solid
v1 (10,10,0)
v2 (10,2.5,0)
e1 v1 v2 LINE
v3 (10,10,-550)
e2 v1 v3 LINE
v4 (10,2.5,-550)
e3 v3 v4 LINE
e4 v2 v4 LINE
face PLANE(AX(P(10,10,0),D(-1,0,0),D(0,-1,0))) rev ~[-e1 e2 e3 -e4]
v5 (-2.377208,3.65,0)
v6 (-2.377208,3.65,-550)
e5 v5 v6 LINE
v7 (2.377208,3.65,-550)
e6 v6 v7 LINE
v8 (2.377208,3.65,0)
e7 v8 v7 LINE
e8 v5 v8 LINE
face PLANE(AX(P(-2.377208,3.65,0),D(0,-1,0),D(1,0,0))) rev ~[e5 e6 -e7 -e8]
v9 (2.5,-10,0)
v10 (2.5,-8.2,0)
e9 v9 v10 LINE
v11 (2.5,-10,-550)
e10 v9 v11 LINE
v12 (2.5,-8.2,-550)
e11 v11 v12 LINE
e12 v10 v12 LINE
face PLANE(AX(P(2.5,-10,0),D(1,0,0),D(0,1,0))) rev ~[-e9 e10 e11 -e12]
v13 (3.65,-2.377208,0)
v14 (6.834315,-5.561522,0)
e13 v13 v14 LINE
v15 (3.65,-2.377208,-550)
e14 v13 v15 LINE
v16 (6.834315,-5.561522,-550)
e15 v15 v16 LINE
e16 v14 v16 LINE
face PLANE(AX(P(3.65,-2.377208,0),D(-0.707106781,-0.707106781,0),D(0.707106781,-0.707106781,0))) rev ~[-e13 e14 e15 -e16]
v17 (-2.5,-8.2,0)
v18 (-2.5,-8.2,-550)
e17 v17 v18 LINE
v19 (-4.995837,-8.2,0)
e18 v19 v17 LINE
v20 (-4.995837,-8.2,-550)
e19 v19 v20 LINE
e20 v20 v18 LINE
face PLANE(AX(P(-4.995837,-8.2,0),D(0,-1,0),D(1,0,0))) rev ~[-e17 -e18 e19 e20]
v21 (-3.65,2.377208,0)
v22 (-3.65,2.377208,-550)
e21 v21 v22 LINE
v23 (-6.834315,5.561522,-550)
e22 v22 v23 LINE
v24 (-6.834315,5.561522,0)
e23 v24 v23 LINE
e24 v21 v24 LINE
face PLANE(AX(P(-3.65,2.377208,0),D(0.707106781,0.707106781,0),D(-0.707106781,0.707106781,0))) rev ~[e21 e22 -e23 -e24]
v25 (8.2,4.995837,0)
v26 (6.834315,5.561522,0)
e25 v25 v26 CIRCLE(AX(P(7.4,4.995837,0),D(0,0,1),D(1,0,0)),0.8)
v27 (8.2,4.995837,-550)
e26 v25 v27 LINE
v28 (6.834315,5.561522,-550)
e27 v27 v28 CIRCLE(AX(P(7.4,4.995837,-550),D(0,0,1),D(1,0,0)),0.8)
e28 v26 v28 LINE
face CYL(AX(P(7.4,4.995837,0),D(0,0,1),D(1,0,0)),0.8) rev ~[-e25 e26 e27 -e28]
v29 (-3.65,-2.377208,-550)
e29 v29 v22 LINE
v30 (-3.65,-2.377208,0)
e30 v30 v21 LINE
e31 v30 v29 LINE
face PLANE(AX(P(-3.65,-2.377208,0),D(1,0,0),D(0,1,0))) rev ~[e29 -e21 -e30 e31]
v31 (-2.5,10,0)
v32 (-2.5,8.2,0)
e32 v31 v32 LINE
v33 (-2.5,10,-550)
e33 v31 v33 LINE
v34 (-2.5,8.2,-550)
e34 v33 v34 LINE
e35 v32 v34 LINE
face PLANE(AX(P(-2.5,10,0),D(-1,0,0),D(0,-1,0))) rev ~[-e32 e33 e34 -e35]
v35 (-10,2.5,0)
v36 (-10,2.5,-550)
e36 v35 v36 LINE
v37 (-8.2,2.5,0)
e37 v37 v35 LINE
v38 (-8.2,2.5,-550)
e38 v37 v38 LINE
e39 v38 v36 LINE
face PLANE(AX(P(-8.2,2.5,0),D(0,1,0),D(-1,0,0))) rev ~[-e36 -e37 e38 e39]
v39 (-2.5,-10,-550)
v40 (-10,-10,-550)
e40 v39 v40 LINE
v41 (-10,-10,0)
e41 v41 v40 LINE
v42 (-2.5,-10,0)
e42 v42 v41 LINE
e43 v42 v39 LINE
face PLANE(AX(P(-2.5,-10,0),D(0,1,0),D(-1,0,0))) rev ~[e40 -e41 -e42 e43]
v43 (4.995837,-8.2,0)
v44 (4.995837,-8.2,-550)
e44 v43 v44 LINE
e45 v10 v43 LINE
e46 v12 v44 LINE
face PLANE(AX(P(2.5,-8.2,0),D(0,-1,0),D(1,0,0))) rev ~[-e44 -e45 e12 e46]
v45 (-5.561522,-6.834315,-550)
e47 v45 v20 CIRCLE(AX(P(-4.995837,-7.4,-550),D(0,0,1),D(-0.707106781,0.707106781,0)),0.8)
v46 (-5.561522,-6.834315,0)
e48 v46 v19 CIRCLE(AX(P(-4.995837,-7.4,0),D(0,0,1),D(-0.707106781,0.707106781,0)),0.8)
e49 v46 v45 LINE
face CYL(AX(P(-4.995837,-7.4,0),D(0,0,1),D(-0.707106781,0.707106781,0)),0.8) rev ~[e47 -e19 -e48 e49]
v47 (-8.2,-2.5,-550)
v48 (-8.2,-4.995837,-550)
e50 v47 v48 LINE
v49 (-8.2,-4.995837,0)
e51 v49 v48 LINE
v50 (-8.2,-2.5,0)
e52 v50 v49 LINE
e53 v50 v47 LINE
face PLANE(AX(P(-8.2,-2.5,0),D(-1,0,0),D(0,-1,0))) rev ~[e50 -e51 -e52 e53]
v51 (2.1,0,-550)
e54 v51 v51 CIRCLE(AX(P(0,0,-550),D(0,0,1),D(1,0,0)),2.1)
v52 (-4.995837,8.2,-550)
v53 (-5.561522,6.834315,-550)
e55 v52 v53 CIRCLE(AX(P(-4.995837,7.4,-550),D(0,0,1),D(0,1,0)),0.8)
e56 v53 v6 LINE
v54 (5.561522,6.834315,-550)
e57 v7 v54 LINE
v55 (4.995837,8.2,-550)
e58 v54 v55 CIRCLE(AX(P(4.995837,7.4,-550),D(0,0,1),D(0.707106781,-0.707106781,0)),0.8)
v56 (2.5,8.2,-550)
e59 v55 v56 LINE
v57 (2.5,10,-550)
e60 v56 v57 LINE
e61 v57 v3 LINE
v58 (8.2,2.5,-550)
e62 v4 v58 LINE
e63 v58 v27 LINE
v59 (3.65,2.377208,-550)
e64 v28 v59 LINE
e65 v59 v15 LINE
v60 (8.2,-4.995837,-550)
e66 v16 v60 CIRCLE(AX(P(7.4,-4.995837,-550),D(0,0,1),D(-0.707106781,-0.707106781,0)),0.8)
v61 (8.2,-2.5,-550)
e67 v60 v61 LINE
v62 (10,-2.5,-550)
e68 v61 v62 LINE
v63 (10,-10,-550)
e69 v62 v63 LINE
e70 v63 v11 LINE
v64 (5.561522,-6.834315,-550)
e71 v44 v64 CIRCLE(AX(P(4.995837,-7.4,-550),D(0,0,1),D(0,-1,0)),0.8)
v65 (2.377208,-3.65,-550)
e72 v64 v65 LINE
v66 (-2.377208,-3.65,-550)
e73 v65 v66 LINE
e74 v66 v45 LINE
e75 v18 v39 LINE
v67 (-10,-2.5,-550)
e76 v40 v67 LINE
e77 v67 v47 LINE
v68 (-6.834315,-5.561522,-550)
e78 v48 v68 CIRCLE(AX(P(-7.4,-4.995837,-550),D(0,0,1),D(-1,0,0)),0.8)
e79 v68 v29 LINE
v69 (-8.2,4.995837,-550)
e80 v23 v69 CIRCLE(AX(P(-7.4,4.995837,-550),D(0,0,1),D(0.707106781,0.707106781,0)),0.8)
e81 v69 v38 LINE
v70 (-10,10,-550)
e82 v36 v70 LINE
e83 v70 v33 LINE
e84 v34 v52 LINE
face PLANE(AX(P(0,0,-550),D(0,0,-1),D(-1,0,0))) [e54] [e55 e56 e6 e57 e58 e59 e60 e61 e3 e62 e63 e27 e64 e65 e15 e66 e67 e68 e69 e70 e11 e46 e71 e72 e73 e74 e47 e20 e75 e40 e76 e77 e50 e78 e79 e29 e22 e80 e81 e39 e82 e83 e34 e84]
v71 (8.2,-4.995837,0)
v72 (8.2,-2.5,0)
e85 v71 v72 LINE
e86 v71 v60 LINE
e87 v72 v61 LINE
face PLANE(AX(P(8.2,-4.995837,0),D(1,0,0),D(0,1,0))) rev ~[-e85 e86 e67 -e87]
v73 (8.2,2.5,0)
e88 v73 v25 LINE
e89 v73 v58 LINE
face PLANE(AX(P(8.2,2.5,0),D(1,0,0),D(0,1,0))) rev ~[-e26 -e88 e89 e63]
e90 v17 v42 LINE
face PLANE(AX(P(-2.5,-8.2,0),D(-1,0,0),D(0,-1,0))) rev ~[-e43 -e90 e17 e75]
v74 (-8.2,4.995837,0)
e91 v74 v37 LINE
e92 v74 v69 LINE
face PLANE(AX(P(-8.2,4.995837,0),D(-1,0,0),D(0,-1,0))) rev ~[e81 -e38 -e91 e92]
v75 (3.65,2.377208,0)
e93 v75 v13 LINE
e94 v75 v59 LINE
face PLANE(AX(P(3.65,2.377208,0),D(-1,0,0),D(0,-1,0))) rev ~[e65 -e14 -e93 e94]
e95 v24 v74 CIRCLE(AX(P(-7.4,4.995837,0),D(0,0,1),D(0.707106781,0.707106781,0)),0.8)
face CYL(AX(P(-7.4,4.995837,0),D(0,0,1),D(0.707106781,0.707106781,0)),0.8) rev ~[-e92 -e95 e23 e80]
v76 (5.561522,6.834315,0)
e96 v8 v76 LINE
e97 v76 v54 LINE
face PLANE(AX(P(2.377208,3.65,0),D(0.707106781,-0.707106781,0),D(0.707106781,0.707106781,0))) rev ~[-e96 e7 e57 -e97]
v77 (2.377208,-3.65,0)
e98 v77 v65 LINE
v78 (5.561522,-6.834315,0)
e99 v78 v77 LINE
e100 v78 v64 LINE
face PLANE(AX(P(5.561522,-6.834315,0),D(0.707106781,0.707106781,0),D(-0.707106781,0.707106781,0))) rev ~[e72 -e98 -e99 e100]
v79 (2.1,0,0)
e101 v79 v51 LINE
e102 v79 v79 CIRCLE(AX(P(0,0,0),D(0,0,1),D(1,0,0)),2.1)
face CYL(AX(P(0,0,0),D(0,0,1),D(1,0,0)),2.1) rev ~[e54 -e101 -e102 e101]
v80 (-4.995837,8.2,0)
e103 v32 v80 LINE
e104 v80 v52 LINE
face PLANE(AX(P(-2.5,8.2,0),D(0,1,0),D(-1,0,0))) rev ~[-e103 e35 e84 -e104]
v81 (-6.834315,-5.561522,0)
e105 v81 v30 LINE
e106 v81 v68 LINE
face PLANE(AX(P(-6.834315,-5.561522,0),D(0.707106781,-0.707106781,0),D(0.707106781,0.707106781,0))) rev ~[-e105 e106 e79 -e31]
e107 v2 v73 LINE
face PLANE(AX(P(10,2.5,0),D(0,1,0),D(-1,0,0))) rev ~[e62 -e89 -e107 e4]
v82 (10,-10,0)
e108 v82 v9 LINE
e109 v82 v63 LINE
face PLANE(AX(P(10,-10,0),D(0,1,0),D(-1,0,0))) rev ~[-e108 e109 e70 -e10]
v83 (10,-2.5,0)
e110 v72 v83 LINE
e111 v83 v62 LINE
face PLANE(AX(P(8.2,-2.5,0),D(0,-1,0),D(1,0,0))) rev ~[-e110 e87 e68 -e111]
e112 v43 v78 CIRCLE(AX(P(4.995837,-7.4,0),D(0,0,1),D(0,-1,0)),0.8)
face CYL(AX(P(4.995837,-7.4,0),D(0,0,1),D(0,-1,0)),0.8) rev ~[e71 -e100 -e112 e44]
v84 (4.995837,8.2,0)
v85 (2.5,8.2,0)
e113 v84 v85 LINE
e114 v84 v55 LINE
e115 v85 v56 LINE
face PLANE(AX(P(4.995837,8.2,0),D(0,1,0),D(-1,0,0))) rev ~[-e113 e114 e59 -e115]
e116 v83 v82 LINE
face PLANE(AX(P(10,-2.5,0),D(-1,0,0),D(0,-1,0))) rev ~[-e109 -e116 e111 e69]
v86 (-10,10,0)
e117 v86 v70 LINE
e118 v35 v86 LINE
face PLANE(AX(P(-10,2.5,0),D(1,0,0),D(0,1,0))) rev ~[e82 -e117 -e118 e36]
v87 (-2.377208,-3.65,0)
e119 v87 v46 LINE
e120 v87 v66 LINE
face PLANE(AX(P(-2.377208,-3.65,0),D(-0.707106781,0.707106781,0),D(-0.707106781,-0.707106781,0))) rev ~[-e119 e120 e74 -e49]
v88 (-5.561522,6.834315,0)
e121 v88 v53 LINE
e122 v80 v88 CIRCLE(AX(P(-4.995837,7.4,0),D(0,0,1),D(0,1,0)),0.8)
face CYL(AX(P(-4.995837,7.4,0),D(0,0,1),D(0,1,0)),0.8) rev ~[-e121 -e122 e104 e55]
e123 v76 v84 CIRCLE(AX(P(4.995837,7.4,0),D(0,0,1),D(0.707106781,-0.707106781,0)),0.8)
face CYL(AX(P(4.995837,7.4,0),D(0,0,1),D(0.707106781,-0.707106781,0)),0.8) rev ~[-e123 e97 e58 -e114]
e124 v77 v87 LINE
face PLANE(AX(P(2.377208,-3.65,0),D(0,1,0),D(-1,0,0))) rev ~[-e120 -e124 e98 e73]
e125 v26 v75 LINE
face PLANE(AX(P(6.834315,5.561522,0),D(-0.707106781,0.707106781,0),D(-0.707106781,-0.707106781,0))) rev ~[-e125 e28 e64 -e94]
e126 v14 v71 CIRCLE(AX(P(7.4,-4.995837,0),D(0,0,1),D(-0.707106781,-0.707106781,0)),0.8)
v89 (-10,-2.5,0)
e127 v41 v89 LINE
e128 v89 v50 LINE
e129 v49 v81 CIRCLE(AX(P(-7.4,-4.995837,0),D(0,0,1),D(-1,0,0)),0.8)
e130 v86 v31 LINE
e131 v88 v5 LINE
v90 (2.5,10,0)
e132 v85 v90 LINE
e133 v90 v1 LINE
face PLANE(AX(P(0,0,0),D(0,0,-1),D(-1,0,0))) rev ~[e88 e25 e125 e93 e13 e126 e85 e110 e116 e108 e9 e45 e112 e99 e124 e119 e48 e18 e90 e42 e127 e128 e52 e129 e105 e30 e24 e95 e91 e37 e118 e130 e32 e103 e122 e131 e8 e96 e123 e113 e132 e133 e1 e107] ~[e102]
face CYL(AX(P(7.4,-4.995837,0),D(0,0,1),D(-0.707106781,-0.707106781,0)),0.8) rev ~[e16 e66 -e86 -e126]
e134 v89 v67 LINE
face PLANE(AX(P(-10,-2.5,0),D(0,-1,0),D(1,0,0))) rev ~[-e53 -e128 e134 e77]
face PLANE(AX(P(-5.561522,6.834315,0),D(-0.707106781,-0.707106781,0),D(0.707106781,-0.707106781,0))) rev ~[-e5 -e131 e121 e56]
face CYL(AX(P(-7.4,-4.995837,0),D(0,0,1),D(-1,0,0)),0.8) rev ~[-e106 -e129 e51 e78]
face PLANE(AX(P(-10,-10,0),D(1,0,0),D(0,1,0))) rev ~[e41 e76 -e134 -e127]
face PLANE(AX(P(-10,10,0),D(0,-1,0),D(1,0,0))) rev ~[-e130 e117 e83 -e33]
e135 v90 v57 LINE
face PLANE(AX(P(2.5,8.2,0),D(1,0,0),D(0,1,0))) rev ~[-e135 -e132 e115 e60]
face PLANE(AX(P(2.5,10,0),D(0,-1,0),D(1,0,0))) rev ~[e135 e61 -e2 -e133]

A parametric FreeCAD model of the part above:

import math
import FreeCAD as App
import Part
import Sketcher

V = App.Vector

doc = App.newDocument("Part")
body = doc.addObject("PartDesign::Body", "Body")

sketch1 = doc.addObject("Sketcher::SketchObject", "Sketch")
body.addObject(sketch1)
sketch1.AttachmentSupport = (doc.XY_Plane, [""])
sketch1.MapMode = "FlatFace"
sketch1.addGeometry([
    Part.LineSegment(V(-10, -2.5, 0), V(-10, -10, 0)),
    Part.LineSegment(V(-10, -10, 0), V(-2.5, -10, 0)),
    Part.LineSegment(V(-2.5, -10, 0), V(-2.5, -8.2, 0)),
    Part.LineSegment(V(-2.5, -8.2, 0), V(-5, -8.2, 0)),
    Part.ArcOfCircle(Part.Circle(V(-5, -7.4, 0), V(0, 0, 1), 0.8), math.radians(135), math.radians(270)),
    Part.LineSegment(V(-5.6, -6.8, 0), V(-2.4, -3.6, 0)),
    Part.LineSegment(V(-2.4, -3.6, 0), V(2.4, -3.6, 0)),
    Part.LineSegment(V(2.4, -3.6, 0), V(5.6, -6.8, 0)),
    Part.ArcOfCircle(Part.Circle(V(5, -7.4, 0), V(0, 0, 1), 0.8), math.radians(-90), math.radians(45)),
    Part.LineSegment(V(5, -8.2, 0), V(2.5, -8.2, 0)),
    Part.LineSegment(V(2.5, -8.2, 0), V(2.5, -10, 0)),
    Part.LineSegment(V(2.5, -10, 0), V(10, -10, 0)),
    Part.LineSegment(V(10, -10, 0), V(10, -2.5, 0)),
    Part.LineSegment(V(10, -2.5, 0), V(8.2, -2.5, 0)),
    Part.LineSegment(V(8.2, -2.5, 0), V(8.2, -5, 0)),
    Part.ArcOfCircle(Part.Circle(V(7.4, -5, 0), V(0, 0, 1), 0.8), math.radians(-135), math.radians(0)),
    Part.LineSegment(V(6.8, -5.6, 0), V(3.6, -2.4, 0)),
    Part.LineSegment(V(3.6, -2.4, 0), V(3.6, 2.4, 0)),
    Part.LineSegment(V(3.6, 2.4, 0), V(6.8, 5.6, 0)),
    Part.ArcOfCircle(Part.Circle(V(7.4, 5, 0), V(0, 0, 1), 0.8), math.radians(0), math.radians(135)),
    Part.LineSegment(V(8.2, 5, 0), V(8.2, 2.5, 0)),
    Part.LineSegment(V(8.2, 2.5, 0), V(10, 2.5, 0)),
    Part.LineSegment(V(10, 2.5, 0), V(10, 10, 0)),
    Part.LineSegment(V(10, 10, 0), V(2.5, 10, 0)),
    Part.LineSegment(V(2.5, 10, 0), V(2.5, 8.2, 0)),
    Part.LineSegment(V(2.5, 8.2, 0), V(5, 8.2, 0)),
    Part.ArcOfCircle(Part.Circle(V(5, 7.4, 0), V(0, 0, 1), 0.8), math.radians(-45), math.radians(90)),
    Part.LineSegment(V(5.6, 6.8, 0), V(2.4, 3.6, 0)),
    Part.LineSegment(V(2.4, 3.6, 0), V(-2.4, 3.6, 0)),
    Part.LineSegment(V(-2.4, 3.6, 0), V(-5.6, 6.8, 0)),
    Part.ArcOfCircle(Part.Circle(V(-5, 7.4, 0), V(0, 0, 1), 0.8), math.radians(90), math.radians(225)),
    Part.LineSegment(V(-5, 8.2, 0), V(-2.5, 8.2, 0)),
    Part.LineSegment(V(-2.5, 8.2, 0), V(-2.5, 10, 0)),
    Part.LineSegment(V(-2.5, 10, 0), V(-10, 10, 0)),
    Part.LineSegment(V(-10, 10, 0), V(-10, 2.5, 0)),
    Part.LineSegment(V(-10, 2.5, 0), V(-8.2, 2.5, 0)),
    Part.LineSegment(V(-8.2, 2.5, 0), V(-8.2, 5, 0)),
    Part.ArcOfCircle(Part.Circle(V(-7.4, 5, 0), V(0, 0, 1), 0.8), math.radians(45), math.radians(180)),
    Part.LineSegment(V(-6.8, 5.6, 0), V(-3.6, 2.4, 0)),
    Part.LineSegment(V(-3.6, 2.4, 0), V(-3.6, -2.4, 0)),
    Part.LineSegment(V(-3.6, -2.4, 0), V(-6.8, -5.6, 0)),
    Part.ArcOfCircle(Part.Circle(V(-7.4, -5, 0), V(0, 0, 1), 0.8), math.radians(180), math.radians(315)),
    Part.LineSegment(V(-8.2, -5, 0), V(-8.2, -2.5, 0)),
    Part.LineSegment(V(-8.2, -2.5, 0), V(-10, -2.5, 0)),
    Part.Circle(V(0, 0, 0), V(0, 0, 1), 2.1),
], False)
sketch1.addConstraint([
    Sketcher.Constraint("Coincident", 0, 2, 1, 1),
    Sketcher.Constraint("Coincident", 1, 2, 2, 1),
    Sketcher.Constraint("Coincident", 2, 2, 3, 1),
    Sketcher.Constraint("Tangent", 3, 2, 4, 2),
    Sketcher.Constraint("Tangent", 4, 1, 5, 1),
    Sketcher.Constraint("Coincident", 5, 2, 6, 1),
    Sketcher.Constraint("Coincident", 6, 2, 7, 1),
    Sketcher.Constraint("Tangent", 7, 2, 8, 2),
    Sketcher.Constraint("Tangent", 8, 1, 9, 1),
    Sketcher.Constraint("Coincident", 9, 2, 10, 1),
    Sketcher.Constraint("Coincident", 10, 2, 11, 1),
    Sketcher.Constraint("Coincident", 11, 2, 12, 1),
    Sketcher.Constraint("Coincident", 12, 2, 13, 1),
    Sketcher.Constraint("Coincident", 13, 2, 14, 1),
    Sketcher.Constraint("Tangent", 14, 2, 15, 2),
    Sketcher.Constraint("Tangent", 15, 1, 16, 1),
    Sketcher.Constraint("Coincident", 16, 2, 17, 1),
    Sketcher.Constraint("Coincident", 17, 2, 18, 1),
    Sketcher.Constraint("Tangent", 18, 2, 19, 2),
    Sketcher.Constraint("Tangent", 19, 1, 20, 1),
    Sketcher.Constraint("Coincident", 20, 2, 21, 1),
    Sketcher.Constraint("Coincident", 21, 2, 22, 1),
    Sketcher.Constraint("Coincident", 22, 2, 23, 1),
    Sketcher.Constraint("Coincident", 23, 2, 24, 1),
    Sketcher.Constraint("Coincident", 24, 2, 25, 1),
    Sketcher.Constraint("Tangent", 25, 2, 26, 2),
    Sketcher.Constraint("Tangent", 26, 1, 27, 1),
    Sketcher.Constraint("Coincident", 27, 2, 28, 1),
    Sketcher.Constraint("Coincident", 28, 2, 29, 1),
    Sketcher.Constraint("Tangent", 29, 2, 30, 2),
    Sketcher.Constraint("Tangent", 30, 1, 31, 1),
    Sketcher.Constraint("Coincident", 31, 2, 32, 1),
    Sketcher.Constraint("Coincident", 32, 2, 33, 1),
    Sketcher.Constraint("Coincident", 33, 2, 34, 1),
    Sketcher.Constraint("Coincident", 34, 2, 35, 1),
    Sketcher.Constraint("Coincident", 35, 2, 36, 1),
    Sketcher.Constraint("Tangent", 36, 2, 37, 2),
    Sketcher.Constraint("Tangent", 37, 1, 38, 1),
    Sketcher.Constraint("Coincident", 38, 2, 39, 1),
    Sketcher.Constraint("Coincident", 39, 2, 40, 1),
    Sketcher.Constraint("Tangent", 40, 2, 41, 2),
    Sketcher.Constraint("Tangent", 41, 1, 42, 1),
    Sketcher.Constraint("Coincident", 42, 2, 43, 1),
    Sketcher.Constraint("Coincident", 43, 2, 0, 1),
    Sketcher.Constraint("Vertical", 0),
    Sketcher.Constraint("Horizontal", 1),
    Sketcher.Constraint("Vertical", 2),
    Sketcher.Constraint("Horizontal", 3),
    Sketcher.Constraint("Horizontal", 6),
    Sketcher.Constraint("Horizontal", 9),
    Sketcher.Constraint("Vertical", 10),
    Sketcher.Constraint("Horizontal", 11),
    Sketcher.Constraint("Vertical", 12),
    Sketcher.Constraint("Horizontal", 13),
    Sketcher.Constraint("Vertical", 14),
    Sketcher.Constraint("Vertical", 17),
    Sketcher.Constraint("Vertical", 20),
    Sketcher.Constraint("Horizontal", 21),
    Sketcher.Constraint("Vertical", 22),
    Sketcher.Constraint("Horizontal", 23),
    Sketcher.Constraint("Vertical", 24),
    Sketcher.Constraint("Horizontal", 25),
    Sketcher.Constraint("Horizontal", 28),
    Sketcher.Constraint("Horizontal", 31),
    Sketcher.Constraint("Vertical", 32),
    Sketcher.Constraint("Horizontal", 33),
    Sketcher.Constraint("Vertical", 34),
    Sketcher.Constraint("Horizontal", 35),
    Sketcher.Constraint("Vertical", 36),
    Sketcher.Constraint("Vertical", 39),
    Sketcher.Constraint("Vertical", 42),
    Sketcher.Constraint("Horizontal", 43),
    Sketcher.Constraint("Coincident", 44, 3, -1, 1),
    Sketcher.Constraint("Equal", 4, 8),
    Sketcher.Constraint("Equal", 8, 15),
    Sketcher.Constraint("Equal", 15, 19),
    Sketcher.Constraint("Equal", 19, 26),
    Sketcher.Constraint("Equal", 26, 30),
    Sketcher.Constraint("Equal", 30, 37),
    Sketcher.Constraint("Equal", 37, 41),
    Sketcher.Constraint("Symmetric", 4, 3, 26, 3, -1, 1),
    Sketcher.Constraint("Symmetric", 8, 3, 30, 3, -1, 1),
    Sketcher.Constraint("Symmetric", 15, 3, 37, 3, -1, 1),
    Sketcher.Constraint("Symmetric", 19, 3, 41, 3, -1, 1),
    Sketcher.Constraint("Symmetric", 0, 2, 22, 2, -1, 1),
    Sketcher.Constraint("Symmetric", 5, 2, 27, 2, -1, 1),
    Sketcher.Constraint("Symmetric", 10, 2, 32, 2, -1, 1),
    Sketcher.Constraint("Symmetric", 12, 2, 34, 2, -1, 1),
    Sketcher.Constraint("Symmetric", 16, 2, 38, 2, -1, 1),
    Sketcher.Constraint("Symmetric", 4, 3, 8, 3, -2),
    Sketcher.Constraint("Symmetric", 19, 3, 37, 3, -2),
    Sketcher.Constraint("Symmetric", 1, 2, 10, 2, -2),
    Sketcher.Constraint("Symmetric", 21, 2, 34, 2, -2),
    Sketcher.Constraint("Perpendicular", 5, 7),
    Sketcher.Constraint("Parallel", 7, 16),
    Sketcher.Constraint("Perpendicular", 16, 18),
    Sketcher.Constraint("Perpendicular", 27, 29),
    Sketcher.Constraint("Perpendicular", 38, 40),
    Sketcher.Constraint("Horizontal", 4, 1, 7, 2),
    Sketcher.Constraint("Horizontal", 13, 2, 42, 2),
    Sketcher.Constraint("Vertical", 10, 2, 23, 2),
    Sketcher.Constraint("Equal", 33, 0),
    Sketcher.Constraint("Equal", 43, 2),
    Sketcher.Constraint("Equal", 31, 14),
    Sketcher.Constraint("Equal", 28, 17),
    Sketcher.Constraint("Equal", 7, 16),
    Sketcher.Constraint("Diameter", 44, 4.2),
    Sketcher.Constraint("Radius", 4, 0.8),
    Sketcher.Constraint("DistanceX", 1, 1, 1, 2, 7.5),
    Sketcher.Constraint("DistanceX", 13, 2, 13, 1, 1.8),
    Sketcher.Constraint("DistanceX", 0, 2, -1, 1, 10.0),
    Sketcher.Constraint("DistanceY", 5, 2, -1, 1, 3.65),
    Sketcher.Constraint("DistanceX", 3, 2, 3, 1, 2.495837),
])
pad1 = doc.addObject("PartDesign::Pad", "Pad")
body.addObject(pad1)
pad1.Profile = sketch1
pad1.Length = 550
pad1.Reversed = True

doc.recompute()
